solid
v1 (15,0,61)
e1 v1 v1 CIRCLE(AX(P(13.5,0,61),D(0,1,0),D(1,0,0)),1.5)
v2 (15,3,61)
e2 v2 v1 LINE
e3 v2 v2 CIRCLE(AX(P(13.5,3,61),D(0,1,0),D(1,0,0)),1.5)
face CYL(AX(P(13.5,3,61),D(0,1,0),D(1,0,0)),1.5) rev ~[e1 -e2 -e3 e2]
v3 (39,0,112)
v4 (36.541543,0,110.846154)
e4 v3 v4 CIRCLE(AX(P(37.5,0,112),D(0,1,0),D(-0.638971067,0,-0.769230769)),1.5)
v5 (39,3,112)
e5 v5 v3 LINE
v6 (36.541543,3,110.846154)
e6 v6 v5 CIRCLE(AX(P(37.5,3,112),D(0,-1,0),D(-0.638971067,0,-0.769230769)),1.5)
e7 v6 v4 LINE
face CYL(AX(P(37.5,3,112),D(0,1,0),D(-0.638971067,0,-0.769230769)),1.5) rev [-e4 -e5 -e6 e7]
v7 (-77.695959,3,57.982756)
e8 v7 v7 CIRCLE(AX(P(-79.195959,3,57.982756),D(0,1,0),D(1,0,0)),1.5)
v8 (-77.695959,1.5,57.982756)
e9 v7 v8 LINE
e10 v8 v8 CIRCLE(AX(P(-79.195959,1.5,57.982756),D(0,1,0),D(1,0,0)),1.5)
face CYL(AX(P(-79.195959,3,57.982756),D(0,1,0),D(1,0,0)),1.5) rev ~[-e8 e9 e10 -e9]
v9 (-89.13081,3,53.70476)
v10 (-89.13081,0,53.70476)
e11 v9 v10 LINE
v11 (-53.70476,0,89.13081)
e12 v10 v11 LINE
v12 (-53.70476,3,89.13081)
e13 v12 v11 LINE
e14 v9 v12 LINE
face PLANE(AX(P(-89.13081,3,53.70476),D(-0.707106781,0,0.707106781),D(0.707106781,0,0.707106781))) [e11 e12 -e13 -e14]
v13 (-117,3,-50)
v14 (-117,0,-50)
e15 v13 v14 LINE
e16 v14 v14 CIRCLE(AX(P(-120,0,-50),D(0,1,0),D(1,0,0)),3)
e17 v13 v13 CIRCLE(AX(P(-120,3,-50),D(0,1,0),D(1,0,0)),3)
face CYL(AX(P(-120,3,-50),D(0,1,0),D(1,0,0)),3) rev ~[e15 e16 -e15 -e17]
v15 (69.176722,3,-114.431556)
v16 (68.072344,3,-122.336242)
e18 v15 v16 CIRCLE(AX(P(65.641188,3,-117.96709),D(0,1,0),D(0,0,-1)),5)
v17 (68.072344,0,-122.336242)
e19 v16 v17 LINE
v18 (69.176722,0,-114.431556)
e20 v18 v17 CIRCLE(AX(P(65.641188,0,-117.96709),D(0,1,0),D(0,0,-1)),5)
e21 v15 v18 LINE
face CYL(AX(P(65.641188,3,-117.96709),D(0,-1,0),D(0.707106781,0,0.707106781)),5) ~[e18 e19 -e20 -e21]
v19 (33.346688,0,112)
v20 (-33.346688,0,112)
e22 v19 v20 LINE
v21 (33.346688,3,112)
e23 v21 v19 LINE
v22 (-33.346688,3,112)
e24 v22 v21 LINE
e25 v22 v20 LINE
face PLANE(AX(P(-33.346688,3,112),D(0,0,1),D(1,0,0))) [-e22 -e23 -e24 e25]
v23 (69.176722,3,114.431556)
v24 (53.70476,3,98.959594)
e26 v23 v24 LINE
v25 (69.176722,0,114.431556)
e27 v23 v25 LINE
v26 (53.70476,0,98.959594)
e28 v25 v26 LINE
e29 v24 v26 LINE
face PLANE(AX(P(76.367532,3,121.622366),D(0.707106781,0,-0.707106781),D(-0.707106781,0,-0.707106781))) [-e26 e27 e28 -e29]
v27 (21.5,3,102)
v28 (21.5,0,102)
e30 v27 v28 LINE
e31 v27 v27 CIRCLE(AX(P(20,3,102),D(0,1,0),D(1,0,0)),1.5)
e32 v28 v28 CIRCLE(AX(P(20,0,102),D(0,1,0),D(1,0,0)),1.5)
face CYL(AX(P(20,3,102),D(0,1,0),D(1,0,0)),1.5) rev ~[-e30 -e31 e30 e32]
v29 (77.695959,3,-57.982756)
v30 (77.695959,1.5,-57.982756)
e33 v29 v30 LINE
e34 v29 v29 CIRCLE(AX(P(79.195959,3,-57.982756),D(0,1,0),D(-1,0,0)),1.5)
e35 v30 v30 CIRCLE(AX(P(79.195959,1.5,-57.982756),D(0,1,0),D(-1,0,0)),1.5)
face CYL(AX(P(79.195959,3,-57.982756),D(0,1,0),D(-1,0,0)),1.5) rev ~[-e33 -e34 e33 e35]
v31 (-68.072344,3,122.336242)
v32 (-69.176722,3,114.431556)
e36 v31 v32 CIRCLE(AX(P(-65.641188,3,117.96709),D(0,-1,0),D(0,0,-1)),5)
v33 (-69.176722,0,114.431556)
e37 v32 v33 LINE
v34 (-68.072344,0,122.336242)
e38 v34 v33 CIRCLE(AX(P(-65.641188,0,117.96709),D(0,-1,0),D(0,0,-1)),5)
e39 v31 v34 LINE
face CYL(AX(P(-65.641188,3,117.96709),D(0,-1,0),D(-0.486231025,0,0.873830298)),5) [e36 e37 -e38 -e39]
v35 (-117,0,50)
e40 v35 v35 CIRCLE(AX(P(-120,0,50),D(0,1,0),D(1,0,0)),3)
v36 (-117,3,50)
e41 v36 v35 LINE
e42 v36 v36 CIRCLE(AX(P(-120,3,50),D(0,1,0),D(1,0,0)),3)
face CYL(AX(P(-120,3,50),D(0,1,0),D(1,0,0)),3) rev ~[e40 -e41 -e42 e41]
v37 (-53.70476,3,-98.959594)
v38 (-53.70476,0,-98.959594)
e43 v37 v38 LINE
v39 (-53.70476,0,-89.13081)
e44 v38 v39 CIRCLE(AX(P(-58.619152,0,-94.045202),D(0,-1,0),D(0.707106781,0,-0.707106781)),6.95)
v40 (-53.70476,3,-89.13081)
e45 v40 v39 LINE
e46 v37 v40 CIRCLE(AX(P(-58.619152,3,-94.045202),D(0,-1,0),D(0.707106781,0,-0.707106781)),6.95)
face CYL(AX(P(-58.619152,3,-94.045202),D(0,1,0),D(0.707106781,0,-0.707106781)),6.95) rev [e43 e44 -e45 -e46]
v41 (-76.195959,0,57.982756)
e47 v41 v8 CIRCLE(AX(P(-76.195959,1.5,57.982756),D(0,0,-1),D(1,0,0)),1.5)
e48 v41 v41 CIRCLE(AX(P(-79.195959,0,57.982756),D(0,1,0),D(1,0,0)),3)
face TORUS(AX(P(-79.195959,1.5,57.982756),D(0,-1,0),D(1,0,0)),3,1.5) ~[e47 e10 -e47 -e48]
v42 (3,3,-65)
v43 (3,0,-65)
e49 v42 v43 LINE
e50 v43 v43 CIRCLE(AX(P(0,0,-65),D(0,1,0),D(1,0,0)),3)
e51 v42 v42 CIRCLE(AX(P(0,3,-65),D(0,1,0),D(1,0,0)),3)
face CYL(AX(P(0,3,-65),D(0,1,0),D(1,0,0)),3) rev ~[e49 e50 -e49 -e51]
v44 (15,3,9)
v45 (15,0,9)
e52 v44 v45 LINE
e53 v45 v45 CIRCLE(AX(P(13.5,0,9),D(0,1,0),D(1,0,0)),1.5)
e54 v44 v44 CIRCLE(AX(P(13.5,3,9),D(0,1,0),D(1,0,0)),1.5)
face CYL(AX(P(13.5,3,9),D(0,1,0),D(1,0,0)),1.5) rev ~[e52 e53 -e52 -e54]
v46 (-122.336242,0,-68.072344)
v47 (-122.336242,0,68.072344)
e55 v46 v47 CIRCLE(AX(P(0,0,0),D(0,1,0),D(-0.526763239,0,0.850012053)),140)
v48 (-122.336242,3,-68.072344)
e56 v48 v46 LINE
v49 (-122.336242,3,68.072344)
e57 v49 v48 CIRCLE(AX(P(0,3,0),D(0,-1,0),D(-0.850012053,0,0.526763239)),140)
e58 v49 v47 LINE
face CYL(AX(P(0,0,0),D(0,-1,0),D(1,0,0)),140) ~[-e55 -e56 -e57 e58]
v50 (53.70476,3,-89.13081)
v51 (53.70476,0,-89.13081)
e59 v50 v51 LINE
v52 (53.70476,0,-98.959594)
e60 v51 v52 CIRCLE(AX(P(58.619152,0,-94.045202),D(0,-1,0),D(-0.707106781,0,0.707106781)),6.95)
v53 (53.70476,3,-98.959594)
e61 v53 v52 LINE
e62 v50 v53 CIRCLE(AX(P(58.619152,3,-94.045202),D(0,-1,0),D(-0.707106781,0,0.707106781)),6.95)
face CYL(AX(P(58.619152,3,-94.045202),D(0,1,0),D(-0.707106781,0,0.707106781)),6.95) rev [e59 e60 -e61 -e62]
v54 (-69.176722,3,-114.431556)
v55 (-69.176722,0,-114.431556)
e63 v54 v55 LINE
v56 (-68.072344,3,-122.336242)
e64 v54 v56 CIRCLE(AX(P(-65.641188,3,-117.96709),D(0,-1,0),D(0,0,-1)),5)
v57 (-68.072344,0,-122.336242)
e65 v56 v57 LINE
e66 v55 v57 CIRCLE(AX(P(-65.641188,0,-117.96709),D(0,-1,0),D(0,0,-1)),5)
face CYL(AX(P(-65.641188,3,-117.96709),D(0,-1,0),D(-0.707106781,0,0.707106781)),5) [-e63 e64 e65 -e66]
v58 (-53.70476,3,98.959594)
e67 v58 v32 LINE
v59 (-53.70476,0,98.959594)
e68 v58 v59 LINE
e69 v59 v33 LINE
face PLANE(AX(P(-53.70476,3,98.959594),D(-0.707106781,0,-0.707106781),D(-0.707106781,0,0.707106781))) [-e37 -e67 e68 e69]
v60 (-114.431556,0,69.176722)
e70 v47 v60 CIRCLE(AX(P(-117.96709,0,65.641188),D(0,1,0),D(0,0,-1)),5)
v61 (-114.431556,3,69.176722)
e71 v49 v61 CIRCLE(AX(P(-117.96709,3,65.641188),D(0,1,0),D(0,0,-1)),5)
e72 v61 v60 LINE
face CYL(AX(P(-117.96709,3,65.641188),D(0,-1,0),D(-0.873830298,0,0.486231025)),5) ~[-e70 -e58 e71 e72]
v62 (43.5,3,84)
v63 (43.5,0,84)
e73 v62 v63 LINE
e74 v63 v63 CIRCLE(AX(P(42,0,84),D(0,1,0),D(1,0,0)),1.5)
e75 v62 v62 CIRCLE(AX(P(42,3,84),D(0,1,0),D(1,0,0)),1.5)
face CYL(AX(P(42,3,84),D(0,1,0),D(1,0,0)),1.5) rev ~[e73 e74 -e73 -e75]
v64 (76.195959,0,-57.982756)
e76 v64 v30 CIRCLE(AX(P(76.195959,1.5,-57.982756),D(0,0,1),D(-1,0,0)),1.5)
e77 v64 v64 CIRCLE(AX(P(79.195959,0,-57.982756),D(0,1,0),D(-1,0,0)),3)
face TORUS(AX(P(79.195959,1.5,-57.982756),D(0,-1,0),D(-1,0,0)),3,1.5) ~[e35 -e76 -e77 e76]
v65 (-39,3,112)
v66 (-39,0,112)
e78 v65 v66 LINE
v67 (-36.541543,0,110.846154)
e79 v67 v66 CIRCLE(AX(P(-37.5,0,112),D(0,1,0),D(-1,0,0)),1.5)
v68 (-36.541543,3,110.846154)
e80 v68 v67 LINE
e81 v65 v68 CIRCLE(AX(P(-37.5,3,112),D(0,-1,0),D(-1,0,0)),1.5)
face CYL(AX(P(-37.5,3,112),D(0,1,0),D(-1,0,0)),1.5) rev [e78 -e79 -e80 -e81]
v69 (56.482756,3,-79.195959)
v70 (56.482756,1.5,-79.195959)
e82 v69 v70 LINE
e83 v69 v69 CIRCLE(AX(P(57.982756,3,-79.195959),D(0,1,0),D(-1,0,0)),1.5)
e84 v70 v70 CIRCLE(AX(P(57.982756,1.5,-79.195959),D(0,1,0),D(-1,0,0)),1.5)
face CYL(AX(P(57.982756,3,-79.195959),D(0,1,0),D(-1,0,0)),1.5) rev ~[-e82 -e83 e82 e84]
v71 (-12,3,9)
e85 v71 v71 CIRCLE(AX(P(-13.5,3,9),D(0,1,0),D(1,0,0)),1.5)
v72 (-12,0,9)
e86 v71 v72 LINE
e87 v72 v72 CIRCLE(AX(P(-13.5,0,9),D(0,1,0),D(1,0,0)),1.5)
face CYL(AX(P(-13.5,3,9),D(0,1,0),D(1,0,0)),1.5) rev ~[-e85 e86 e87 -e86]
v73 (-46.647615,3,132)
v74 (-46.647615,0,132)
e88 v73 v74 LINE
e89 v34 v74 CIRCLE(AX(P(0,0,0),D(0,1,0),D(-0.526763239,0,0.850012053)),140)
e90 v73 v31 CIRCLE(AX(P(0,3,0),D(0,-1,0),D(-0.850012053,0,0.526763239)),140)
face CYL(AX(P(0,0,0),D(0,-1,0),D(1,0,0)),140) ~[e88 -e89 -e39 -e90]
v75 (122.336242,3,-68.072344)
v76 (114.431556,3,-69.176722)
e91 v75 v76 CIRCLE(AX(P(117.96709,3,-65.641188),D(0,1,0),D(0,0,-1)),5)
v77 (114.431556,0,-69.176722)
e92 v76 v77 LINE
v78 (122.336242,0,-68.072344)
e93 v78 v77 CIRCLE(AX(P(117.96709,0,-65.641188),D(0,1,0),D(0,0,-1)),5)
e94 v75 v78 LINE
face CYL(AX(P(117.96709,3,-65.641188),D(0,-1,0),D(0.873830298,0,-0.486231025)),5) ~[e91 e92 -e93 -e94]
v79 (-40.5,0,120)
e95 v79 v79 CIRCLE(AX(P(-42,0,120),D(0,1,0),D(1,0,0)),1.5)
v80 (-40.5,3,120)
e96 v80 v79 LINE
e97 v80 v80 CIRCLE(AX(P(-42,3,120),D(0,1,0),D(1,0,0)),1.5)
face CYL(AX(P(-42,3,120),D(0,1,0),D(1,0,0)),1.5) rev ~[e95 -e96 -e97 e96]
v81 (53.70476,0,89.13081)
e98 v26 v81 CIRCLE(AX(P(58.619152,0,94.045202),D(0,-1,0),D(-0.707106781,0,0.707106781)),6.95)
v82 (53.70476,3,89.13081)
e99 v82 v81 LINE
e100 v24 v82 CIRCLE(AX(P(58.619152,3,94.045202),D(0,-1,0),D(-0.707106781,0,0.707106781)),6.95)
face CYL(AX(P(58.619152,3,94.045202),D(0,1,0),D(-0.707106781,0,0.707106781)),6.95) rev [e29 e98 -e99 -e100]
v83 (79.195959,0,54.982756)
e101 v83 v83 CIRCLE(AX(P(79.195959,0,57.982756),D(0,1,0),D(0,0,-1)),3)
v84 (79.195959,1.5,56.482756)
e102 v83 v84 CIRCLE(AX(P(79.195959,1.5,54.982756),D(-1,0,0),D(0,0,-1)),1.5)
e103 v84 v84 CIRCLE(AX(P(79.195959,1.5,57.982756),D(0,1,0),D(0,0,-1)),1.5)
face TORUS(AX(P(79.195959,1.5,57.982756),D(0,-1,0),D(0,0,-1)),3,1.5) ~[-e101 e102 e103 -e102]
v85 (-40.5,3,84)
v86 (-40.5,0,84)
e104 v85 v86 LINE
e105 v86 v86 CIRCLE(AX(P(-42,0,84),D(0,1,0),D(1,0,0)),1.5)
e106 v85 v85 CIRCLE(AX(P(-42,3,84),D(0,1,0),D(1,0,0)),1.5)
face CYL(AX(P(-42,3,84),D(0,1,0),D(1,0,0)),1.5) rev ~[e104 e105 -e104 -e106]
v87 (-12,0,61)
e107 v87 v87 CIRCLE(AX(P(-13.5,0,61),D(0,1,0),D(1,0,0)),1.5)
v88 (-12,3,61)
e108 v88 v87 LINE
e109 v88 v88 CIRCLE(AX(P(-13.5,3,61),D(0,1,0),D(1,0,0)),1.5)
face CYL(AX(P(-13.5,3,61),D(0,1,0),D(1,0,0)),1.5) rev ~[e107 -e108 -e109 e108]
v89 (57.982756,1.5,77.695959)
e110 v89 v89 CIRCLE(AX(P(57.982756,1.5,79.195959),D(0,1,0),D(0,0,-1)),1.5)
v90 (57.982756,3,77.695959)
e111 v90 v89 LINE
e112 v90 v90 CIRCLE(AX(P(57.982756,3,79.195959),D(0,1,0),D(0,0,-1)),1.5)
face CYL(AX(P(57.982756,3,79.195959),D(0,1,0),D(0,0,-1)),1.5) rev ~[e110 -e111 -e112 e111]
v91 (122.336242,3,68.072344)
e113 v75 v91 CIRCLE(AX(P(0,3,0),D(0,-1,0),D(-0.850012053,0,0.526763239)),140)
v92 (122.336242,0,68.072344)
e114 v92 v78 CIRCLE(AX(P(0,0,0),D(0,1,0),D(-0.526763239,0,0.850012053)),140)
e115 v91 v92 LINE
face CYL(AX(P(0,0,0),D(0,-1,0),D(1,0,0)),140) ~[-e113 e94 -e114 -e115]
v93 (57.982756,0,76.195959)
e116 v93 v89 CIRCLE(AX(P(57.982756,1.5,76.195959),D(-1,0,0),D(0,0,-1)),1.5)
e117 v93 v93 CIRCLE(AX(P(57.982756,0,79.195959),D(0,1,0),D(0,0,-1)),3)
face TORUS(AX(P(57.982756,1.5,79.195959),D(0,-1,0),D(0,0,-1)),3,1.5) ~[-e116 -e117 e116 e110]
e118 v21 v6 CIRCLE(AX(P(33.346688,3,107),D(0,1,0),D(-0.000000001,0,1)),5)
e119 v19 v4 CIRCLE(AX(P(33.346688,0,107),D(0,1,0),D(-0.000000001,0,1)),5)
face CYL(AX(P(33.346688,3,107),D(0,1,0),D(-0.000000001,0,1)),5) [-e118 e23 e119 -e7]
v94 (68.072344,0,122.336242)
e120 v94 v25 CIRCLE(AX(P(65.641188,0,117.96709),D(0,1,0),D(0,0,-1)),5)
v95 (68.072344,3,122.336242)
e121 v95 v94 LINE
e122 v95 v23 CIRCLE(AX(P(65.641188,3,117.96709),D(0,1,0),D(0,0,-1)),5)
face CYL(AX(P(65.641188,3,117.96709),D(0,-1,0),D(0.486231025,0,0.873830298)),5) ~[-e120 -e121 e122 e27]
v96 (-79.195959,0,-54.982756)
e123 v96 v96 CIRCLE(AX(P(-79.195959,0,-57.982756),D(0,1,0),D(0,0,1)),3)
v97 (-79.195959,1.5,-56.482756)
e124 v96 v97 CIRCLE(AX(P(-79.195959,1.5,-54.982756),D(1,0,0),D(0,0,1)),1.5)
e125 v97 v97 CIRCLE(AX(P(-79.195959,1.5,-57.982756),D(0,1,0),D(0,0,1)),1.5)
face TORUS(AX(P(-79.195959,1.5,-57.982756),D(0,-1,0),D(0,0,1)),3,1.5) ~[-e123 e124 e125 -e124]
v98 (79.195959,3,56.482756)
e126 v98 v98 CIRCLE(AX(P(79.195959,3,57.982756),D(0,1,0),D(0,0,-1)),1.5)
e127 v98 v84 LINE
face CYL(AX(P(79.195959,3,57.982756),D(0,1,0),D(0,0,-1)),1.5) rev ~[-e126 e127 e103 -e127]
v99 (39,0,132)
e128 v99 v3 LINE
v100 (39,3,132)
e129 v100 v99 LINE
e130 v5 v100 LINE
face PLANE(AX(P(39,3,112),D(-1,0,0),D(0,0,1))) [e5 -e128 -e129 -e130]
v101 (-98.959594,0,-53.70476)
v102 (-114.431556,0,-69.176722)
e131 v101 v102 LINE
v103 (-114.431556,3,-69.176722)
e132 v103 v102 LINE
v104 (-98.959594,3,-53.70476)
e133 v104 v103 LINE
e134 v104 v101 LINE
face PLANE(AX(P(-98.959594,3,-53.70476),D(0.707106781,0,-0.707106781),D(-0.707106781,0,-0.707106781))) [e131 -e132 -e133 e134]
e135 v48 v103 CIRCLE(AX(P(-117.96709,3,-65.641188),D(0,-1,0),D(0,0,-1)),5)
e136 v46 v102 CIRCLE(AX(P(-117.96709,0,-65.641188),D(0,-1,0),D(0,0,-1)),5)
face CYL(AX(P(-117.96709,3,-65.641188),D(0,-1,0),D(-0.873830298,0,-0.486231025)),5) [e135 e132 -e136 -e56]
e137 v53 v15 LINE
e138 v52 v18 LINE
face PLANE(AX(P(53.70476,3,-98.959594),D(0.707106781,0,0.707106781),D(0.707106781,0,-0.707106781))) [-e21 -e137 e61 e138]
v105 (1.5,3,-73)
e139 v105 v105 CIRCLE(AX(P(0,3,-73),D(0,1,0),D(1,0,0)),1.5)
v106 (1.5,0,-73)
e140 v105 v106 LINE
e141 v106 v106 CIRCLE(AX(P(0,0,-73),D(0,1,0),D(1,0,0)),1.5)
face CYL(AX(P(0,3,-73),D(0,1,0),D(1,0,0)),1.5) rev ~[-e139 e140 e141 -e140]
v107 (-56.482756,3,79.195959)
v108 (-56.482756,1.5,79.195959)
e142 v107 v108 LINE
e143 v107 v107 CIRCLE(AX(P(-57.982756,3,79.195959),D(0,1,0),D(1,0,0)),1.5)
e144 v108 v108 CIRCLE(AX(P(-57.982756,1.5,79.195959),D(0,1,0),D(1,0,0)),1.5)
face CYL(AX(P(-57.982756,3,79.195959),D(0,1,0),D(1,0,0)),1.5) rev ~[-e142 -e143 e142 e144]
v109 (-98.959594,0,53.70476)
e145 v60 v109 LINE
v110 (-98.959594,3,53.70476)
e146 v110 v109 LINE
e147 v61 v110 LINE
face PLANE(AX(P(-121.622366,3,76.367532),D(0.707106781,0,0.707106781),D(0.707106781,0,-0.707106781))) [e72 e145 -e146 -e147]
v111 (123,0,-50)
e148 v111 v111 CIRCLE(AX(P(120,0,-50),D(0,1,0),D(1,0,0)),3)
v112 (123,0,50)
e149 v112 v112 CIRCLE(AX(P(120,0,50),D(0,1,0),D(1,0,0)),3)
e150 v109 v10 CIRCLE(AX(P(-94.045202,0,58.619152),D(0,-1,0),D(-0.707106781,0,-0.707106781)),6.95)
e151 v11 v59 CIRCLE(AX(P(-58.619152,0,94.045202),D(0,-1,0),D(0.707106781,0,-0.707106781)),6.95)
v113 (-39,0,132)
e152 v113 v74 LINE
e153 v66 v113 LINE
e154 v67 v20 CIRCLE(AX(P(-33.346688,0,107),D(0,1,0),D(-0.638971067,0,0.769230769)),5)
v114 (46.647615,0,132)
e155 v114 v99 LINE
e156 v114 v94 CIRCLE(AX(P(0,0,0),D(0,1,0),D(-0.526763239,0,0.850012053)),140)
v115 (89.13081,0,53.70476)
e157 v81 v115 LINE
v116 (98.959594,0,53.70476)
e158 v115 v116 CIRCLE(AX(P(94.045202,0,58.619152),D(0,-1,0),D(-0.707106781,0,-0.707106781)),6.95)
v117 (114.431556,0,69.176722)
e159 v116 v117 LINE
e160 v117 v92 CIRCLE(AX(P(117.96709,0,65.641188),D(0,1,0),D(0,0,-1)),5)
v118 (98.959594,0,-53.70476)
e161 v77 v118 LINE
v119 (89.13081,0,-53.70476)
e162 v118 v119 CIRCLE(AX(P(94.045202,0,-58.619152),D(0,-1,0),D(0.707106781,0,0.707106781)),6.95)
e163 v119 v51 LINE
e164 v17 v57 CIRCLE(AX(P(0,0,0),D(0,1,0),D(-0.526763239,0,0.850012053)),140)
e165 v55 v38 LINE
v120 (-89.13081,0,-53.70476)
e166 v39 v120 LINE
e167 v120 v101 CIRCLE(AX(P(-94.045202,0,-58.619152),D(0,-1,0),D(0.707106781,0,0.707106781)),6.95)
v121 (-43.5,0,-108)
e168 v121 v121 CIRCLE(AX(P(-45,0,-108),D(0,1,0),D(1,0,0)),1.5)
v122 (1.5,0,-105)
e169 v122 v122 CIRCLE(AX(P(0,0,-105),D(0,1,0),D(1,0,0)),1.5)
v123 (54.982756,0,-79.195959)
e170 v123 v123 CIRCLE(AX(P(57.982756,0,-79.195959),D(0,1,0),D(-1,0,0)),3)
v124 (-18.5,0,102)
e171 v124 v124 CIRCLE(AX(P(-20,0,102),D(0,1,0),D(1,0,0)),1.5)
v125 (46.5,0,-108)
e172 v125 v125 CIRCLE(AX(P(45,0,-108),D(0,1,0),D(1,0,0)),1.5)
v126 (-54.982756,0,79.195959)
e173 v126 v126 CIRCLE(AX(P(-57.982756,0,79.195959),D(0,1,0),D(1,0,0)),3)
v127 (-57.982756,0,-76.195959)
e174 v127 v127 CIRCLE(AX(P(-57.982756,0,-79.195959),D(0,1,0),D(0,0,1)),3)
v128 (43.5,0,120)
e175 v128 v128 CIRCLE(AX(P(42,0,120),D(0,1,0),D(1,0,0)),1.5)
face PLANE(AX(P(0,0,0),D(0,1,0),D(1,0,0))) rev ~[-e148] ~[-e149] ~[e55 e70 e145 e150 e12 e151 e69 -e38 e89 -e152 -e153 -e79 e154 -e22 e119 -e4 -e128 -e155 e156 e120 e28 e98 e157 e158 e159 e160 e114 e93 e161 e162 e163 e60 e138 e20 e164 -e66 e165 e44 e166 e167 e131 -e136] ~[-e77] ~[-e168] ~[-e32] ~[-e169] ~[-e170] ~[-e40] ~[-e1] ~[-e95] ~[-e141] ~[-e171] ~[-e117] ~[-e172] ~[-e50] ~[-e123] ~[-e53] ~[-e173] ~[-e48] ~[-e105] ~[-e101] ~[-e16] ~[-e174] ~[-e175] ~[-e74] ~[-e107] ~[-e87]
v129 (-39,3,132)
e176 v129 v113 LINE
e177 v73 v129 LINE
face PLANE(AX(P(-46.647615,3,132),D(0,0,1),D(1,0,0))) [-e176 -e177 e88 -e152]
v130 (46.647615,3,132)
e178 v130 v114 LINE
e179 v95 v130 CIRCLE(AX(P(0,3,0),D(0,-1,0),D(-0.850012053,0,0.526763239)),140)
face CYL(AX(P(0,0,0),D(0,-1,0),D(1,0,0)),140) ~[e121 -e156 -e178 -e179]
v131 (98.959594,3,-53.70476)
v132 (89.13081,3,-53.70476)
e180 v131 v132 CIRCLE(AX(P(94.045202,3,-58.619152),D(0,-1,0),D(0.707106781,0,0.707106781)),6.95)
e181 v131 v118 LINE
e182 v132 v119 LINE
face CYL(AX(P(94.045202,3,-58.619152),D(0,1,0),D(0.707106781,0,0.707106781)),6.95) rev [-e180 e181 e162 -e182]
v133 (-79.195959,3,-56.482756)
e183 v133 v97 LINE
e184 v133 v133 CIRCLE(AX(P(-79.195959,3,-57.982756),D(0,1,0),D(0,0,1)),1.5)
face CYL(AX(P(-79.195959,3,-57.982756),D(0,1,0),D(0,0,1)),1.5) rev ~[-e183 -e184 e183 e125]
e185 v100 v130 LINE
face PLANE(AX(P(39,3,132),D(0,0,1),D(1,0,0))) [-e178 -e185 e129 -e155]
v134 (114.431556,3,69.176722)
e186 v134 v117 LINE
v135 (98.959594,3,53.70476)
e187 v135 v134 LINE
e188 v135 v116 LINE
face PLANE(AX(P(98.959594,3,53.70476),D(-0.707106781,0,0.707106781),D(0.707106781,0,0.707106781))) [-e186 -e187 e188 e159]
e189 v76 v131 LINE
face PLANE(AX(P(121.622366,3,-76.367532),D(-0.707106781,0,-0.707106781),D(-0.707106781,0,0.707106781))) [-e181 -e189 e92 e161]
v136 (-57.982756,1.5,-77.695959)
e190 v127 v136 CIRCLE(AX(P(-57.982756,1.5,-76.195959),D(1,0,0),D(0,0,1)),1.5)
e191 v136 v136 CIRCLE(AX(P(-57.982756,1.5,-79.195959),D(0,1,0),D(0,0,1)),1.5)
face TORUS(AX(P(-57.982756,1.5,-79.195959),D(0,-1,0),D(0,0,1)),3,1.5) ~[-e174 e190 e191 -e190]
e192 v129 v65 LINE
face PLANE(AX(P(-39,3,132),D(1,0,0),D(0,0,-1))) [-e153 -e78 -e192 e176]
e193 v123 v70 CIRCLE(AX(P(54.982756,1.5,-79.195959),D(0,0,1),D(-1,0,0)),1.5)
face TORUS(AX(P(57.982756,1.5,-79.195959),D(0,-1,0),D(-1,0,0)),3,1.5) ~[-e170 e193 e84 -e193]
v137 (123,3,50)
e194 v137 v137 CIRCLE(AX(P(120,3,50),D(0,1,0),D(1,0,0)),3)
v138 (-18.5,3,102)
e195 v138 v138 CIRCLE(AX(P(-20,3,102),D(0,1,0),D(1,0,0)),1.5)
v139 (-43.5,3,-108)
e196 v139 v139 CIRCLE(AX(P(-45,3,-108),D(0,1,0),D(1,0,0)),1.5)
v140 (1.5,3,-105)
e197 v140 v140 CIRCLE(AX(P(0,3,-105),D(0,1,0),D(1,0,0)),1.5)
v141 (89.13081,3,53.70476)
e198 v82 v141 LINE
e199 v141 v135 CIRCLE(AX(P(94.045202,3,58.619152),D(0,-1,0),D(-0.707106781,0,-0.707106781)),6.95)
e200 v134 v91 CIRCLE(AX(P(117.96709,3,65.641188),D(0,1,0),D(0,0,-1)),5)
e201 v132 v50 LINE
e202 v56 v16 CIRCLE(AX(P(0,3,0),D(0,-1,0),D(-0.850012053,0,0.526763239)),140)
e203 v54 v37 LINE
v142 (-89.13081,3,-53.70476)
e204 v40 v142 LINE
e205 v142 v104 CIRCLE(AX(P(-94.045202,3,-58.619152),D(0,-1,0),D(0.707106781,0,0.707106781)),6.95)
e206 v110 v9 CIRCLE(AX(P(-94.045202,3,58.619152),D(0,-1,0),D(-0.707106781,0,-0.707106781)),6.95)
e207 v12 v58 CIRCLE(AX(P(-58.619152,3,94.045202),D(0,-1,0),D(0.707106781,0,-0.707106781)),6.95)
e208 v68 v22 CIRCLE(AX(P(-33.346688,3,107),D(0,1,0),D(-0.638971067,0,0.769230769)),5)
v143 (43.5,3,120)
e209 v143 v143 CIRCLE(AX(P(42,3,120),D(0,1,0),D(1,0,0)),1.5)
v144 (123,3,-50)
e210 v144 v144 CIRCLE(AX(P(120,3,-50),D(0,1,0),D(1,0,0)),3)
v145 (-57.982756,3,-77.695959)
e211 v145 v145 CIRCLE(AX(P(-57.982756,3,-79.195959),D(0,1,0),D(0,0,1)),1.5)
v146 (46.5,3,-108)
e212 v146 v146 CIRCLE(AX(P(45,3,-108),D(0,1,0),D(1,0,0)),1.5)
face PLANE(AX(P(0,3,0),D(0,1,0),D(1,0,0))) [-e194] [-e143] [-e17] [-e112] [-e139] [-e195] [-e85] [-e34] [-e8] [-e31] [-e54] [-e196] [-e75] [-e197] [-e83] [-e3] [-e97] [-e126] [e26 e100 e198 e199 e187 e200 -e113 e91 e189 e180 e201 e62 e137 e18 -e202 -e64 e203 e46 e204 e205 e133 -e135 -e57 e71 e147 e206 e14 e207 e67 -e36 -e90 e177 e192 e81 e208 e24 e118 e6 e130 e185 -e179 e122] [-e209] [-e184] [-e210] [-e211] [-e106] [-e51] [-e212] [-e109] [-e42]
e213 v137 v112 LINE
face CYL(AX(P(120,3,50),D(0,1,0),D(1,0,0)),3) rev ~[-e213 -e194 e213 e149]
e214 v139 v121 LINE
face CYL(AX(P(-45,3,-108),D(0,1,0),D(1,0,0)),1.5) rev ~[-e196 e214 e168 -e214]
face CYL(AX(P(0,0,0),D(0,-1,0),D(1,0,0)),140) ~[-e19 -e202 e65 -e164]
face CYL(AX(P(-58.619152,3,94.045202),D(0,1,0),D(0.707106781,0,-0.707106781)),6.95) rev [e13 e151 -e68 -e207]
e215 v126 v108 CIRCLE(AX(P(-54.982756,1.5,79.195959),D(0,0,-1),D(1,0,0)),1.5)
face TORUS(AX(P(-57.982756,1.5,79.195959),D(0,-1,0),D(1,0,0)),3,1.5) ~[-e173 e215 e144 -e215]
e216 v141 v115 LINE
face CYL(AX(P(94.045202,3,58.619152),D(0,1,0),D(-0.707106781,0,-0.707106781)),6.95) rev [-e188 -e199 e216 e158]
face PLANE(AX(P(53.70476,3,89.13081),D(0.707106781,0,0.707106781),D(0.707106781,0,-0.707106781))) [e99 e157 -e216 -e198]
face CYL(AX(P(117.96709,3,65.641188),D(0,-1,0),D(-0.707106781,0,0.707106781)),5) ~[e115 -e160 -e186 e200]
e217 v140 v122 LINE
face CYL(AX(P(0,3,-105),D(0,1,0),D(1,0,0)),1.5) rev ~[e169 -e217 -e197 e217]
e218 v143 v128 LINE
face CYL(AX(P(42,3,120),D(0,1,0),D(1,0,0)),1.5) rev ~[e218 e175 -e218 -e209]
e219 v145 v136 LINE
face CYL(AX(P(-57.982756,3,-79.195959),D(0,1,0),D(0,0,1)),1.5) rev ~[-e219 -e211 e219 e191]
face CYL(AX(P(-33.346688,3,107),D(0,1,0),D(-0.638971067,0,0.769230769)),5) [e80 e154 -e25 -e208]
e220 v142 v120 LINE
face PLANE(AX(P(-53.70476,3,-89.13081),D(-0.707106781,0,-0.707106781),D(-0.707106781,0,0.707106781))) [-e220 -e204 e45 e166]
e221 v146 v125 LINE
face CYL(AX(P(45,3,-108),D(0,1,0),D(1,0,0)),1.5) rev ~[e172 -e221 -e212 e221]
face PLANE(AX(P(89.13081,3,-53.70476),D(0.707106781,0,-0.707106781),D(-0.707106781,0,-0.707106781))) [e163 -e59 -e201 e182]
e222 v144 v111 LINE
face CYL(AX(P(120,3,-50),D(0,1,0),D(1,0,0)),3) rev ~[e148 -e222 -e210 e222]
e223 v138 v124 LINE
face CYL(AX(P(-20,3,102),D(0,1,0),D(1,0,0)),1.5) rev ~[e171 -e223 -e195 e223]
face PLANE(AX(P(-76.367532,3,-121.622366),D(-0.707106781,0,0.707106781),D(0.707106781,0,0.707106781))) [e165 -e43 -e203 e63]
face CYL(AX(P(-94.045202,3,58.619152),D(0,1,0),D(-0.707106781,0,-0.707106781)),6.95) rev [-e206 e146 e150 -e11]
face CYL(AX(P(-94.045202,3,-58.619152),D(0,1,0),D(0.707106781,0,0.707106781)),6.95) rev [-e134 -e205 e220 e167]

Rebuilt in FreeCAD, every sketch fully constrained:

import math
import FreeCAD as App
import Part
import Sketcher
from FreeCAD import Vector


def edges_at(feature, points):
    """Names of the edges that pass closest to the given points."""
    edges = feature.Shape.Edges
    near = lambda p: min(range(len(edges)), key=lambda i: edges[i].distToShape(Part.Vertex(*p))[0])
    return sorted({f"Edge{near(p) + 1}" for p in points})

doc = App.newDocument("Part")
body = doc.addObject("PartDesign::Body", "Body")

sketch1 = body.newObject("Sketcher::SketchObject", "Sketch")
sketch1.AttachmentSupport = (doc.getObject("XZ_Plane"), [""])
sketch1.MapMode = "FlatFace"
sketch1.addGeometry(Part.Circle(Vector(0, 0, 0), Vector(0, 0, 1), 140), False)
sketch1.addConstraint(Sketcher.Constraint("Coincident", 0, 3, -1, 1))
sketch1.addConstraint(Sketcher.Constraint("Diameter", 0, 280.0))
pad1 = body.newObject("PartDesign::Pad", "Pad")
pad1.Profile = sketch1
pad1.Length = 3
pad1.Reversed = True

sketch2 = body.newObject("Sketcher::SketchObject", "Sketch001")
sketch2.AttachmentSupport = (doc.getObject("XZ_Plane"), [""])
sketch2.MapMode = "FlatFace"
sketch2.AttachmentOffset = App.Placement(Vector(0, 0, -3), App.Rotation())
sketch2.addGeometry(Part.LineSegment(Vector(-54, 89, 0), Vector(-89, 54, 0)), False)
sketch2.addGeometry(Part.ArcOfCircle(Part.Circle(Vector(-94, 59, 0), Vector(0, 0, 1), 7), math.radians(-135), math.radians(-45)), False)
sketch2.addGeometry(Part.LineSegment(Vector(-99, 54, 0), Vector(-122, 76, 0)), False)
sketch2.addGeometry(Part.LineSegment(Vector(-122, 76, 0), Vector(-76, 122, 0)), False)
sketch2.addGeometry(Part.LineSegment(Vector(-76, 122, 0), Vector(-54, 99, 0)), False)
sketch2.addGeometry(Part.ArcOfCircle(Part.Circle(Vector(-59, 94, 0), Vector(0, 0, 1), 7), math.radians(-45), math.radians(45)), False)
sketch2.addConstraint(Sketcher.Constraint("Tangent", 0, 2, 1, 2))
sketch2.addConstraint(Sketcher.Constraint("Tangent", 1, 1, 2, 1))
sketch2.addConstraint(Sketcher.Constraint("Coincident", 2, 2, 3, 1))
sketch2.addConstraint(Sketcher.Constraint("Coincident", 3, 2, 4, 1))
sketch2.addConstraint(Sketcher.Constraint("Tangent", 4, 2, 5, 2))
sketch2.addConstraint(Sketcher.Constraint("Tangent", 5, 1, 0, 1))
sketch2.addConstraint(Sketcher.Constraint("Equal", 1, 5))
sketch2.addConstraint(Sketcher.Constraint("Perpendicular", 0, 2))
sketch2.addConstraint(Sketcher.Constraint("Perpendicular", 2, 3))
sketch2.addConstraint(Sketcher.Constraint("Perpendicular", 3, 4))
sketch2.addConstraint(Sketcher.Constraint("Horizontal", 0, 2, 1, 1))
sketch2.addConstraint(Sketcher.Constraint("Radius", 1, 6.95))
sketch2.addConstraint(Sketcher.Constraint("Distance", 3, 64.0))
sketch2.addConstraint(Sketcher.Constraint("Distance", 2, 32.05))
sketch2.addConstraint(Sketcher.Constraint("DistanceX", 1, 3, -1, 1, 94.045202))
sketch2.addConstraint(Sketcher.Constraint("DistanceY", -1, 1, 5, 3, 94.045202))
pocket1 = body.newObject("PartDesign::Pocket", "Pocket")
pocket1.Profile = sketch2
pocket1.Length = 3
pocket1.Reversed = True

sketch3 = body.newObject("Sketcher::SketchObject", "Sketch002")
sketch3.AttachmentSupport = (doc.getObject("XZ_Plane"), [""])
sketch3.MapMode = "FlatFace"
sketch3.AttachmentOffset = App.Placement(Vector(0, 0, -3), App.Rotation())
sketch3.addGeometry(Part.Circle(Vector(-79.2, 58, 0), Vector(0, 0, 1), 1.5), False)
sketch3.addGeometry(Part.Circle(Vector(-58, 79.2, 0), Vector(0, 0, 1), 1.5), False)
sketch3.addConstraint(Sketcher.Constraint("Equal", 0, 1))
sketch3.addConstraint(Sketcher.Constraint("Diameter", 0, 3.0))
sketch3.addConstraint(Sketcher.Constraint("DistanceX", 0, 3, -1, 1, 79.195959))
sketch3.addConstraint(Sketcher.Constraint("DistanceY", -1, 1, 1, 3, 79.195959))
sketch3.addConstraint(Sketcher.Constraint("DistanceY", -1, 1, 0, 3, 57.982756))
sketch3.addConstraint(Sketcher.Constraint("DistanceX", 1, 3, -1, 1, 57.982756))
pocket2 = body.newObject("PartDesign::Pocket", "Pocket001")
pocket2.Profile = sketch3
pocket2.Length = 3
pocket2.Reversed = True
doc.recompute()

fillet = body.newObject("PartDesign::Fillet", "Fillet")
fillet.Base = (pocket2, edges_at(pocket2, [(-119.002, 1.5, 73.747), (-73.747, 1.5, 119.002)]))
fillet.Radius = 5
doc.recompute()

polarpattern = body.newObject("PartDesign::PolarPattern", "PolarPattern")
polarpattern.Originals = [pocket1, pocket2]
polarpattern.Axis = (doc.getObject("Y_Axis"), [""])
polarpattern.Angle = 360
polarpattern.Occurrences = 4
body.Tip = polarpattern
doc.recompute()

fillet2 = body.newObject("PartDesign::Fillet", "Fillet001")
fillet2.Base = (polarpattern, edges_at(polarpattern, [
    (73.747, 1.5, 119.002),
    (119.002, 1.5, 73.747),
    (119.002, 1.5, -73.747),
    (73.747, 1.5, -119.002),
    (-73.747, 1.5, -119.002),
    (-119.002, 1.5, -73.747),
]))
fillet2.Radius = 5

sketch4 = body.newObject("Sketcher::SketchObject", "Sketch003")
sketch4.AttachmentSupport = (doc.getObject("XZ_Plane"), [""])
sketch4.MapMode = "FlatFace"
sketch4.AttachmentOffset = App.Placement(Vector(0, 0, -3), App.Rotation())
sketch4.addGeometry(Part.LineSegment(Vector(-39, 132, 0), Vector(-46.6, 132, 0)), False)
sketch4.addGeometry(Part.LineSegment(Vector(-46.6, 132, 0), Vector(-46.6, 140, 0)), False)
sketch4.addGeometry(Part.LineSegment(Vector(-46.6, 140, 0), Vector(46.6, 140, 0)), False)
sketch4.addGeometry(Part.LineSegment(Vector(46.6, 140, 0), Vector(46.6, 132, 0)), False)
sketch4.addGeometry(Part.LineSegment(Vector(46.6, 132, 0), Vector(39, 132, 0)), False)
sketch4.addGeometry(Part.LineSegment(Vector(39, 132, 0), Vector(39, 112, 0)), False)
sketch4.addGeometry(Part.ArcOfCircle(Part.Circle(Vector(37.5, 112, 0), Vector(0, 0, 1), 1.5), math.radians(-130), math.radians(0)), False)
sketch4.addGeometry(Part.ArcOfCircle(Part.Circle(Vector(33.3, 107, 0), Vector(0, 0, 1), 5), math.radians(50), math.radians(90)), False)
sketch4.addGeometry(Part.LineSegment(Vector(33.3, 112, 0), Vector(-33.3, 112, 0)), False)
sketch4.addGeometry(Part.ArcOfCircle(Part.Circle(Vector(-33.3, 107, 0), Vector(0, 0, 1), 5), math.radians(90), math.radians(130)), False)
sketch4.addGeometry(Part.ArcOfCircle(Part.Circle(Vector(-37.5, 112, 0), Vector(0, 0, 1), 1.5), math.radians(180), math.radians(310)), False)
sketch4.addGeometry(Part.LineSegment(Vector(-39, 112, 0), Vector(-39, 132, 0)), False)
sketch4.addConstraint(Sketcher.Constraint("Coincident", 0, 2, 1, 1))
sketch4.addConstraint(Sketcher.Constraint("Coincident", 1, 2, 2, 1))
sketch4.addConstraint(Sketcher.Constraint("Coincident", 2, 2, 3, 1))
sketch4.addConstraint(Sketcher.Constraint("Coincident", 3, 2, 4, 1))
sketch4.addConstraint(Sketcher.Constraint("Coincident", 4, 2, 5, 1))
sketch4.addConstraint(Sketcher.Constraint("Tangent", 5, 2, 6, 2))
sketch4.addConstraint(Sketcher.Constraint("Tangent", 6, 1, 7, 1))
sketch4.addConstraint(Sketcher.Constraint("Tangent", 7, 2, 8, 1))
sketch4.addConstraint(Sketcher.Constraint("Tangent", 8, 2, 9, 1))
sketch4.addConstraint(Sketcher.Constraint("Tangent", 9, 2, 10, 2))
sketch4.addConstraint(Sketcher.Constraint("Tangent", 10, 1, 11, 1))
sketch4.addConstraint(Sketcher.Constraint("Coincident", 11, 2, 0, 1))
sketch4.addConstraint(Sketcher.Constraint("Horizontal", 0))
sketch4.addConstraint(Sketcher.Constraint("Vertical", 1))
sketch4.addConstraint(Sketcher.Constraint("Horizontal", 2))
sketch4.addConstraint(Sketcher.Constraint("Vertical", 3))
sketch4.addConstraint(Sketcher.Constraint("Horizontal", 4))
sketch4.addConstraint(Sketcher.Constraint("Vertical", 5))
sketch4.addConstraint(Sketcher.Constraint("Horizontal", 8))
sketch4.addConstraint(Sketcher.Constraint("Vertical", 11))
sketch4.addConstraint(Sketcher.Constraint("Equal", 7, 9))
sketch4.addConstraint(Sketcher.Constraint("Equal", 6, 10))
sketch4.addConstraint(Sketcher.Constraint("Symmetric", 6, 3, 10, 3, -2))
sketch4.addConstraint(Sketcher.Constraint("Symmetric", 0, 2, 3, 2, -2))
sketch4.addConstraint(Sketcher.Constraint("Horizontal", 5, 2, 7, 2))
sketch4.addConstraint(Sketcher.Constraint("Radius", 7, 5.0))
sketch4.addConstraint(Sketcher.Constraint("Radius", 6, 1.5))
sketch4.addConstraint(Sketcher.Constraint("DistanceY", 1, 1, 1, 2, 8.0))
sketch4.addConstraint(Sketcher.Constraint("DistanceY", 5, 2, 5, 1, 20.0))
sketch4.addConstraint(Sketcher.Constraint("DistanceY", -1, 1, 6, 3, 112.0))
sketch4.addConstraint(Sketcher.Constraint("DistanceX", -1, 1, 4, 2, 39.0))
sketch4.addConstraint(Sketcher.Constraint("DistanceX", 2, 1, 2, 2, 93.29523))
pocket3 = body.newObject("PartDesign::Pocket", "Pocket002")
pocket3.Profile = sketch4
pocket3.Type = "UpToFirst"
pocket3.Reversed = True
doc.recompute()

fillet3 = body.newObject("PartDesign::Fillet", "Fillet002")
fillet3.Base = (pocket3, edges_at(pocket3, [
    (57.983, 0, 80.696),
    (79.196, 0, 59.483),
    (80.696, 0, -57.983),
    (59.483, 0, -79.196),
    (-57.983, 0, -80.696),
    (-79.196, 0, -59.483),
    (-80.696, 0, 57.983),
    (-59.483, 0, 79.196),
]))
fillet3.Radius = 1.5

sketch5 = body.newObject("Sketcher::SketchObject", "Sketch004")
sketch5.AttachmentSupport = (doc.getObject("XZ_Plane"), [""])
sketch5.MapMode = "FlatFace"
sketch5.AttachmentOffset = App.Placement(Vector(0, 0, -3), App.Rotation())
sketch5.addGeometry(Part.Circle(Vector(-13.5, 61, 0), Vector(0, 0, 1), 1.5), False)
sketch5.addConstraint(Sketcher.Constraint("Diameter", 0, 3.0))
sketch5.addConstraint(Sketcher.Constraint("DistanceY", -1, 1, 0, 3, 61.0))
sketch5.addConstraint(Sketcher.Constraint("DistanceX", 0, 3, -1, 1, 13.5))
pocket4 = body.newObject("PartDesign::Pocket", "Pocket003")
pocket4.Profile = sketch5
pocket4.Type = "UpToFirst"
pocket4.Reversed = True

sketch6 = body.newObject("Sketcher::SketchObject", "Sketch005")
sketch6.AttachmentSupport = (doc.getObject("XZ_Plane"), [""])
sketch6.MapMode = "FlatFace"
sketch6.AttachmentOffset = App.Placement(Vector(0, 0, -3), App.Rotation())
sketch6.addGeometry(Part.Circle(Vector(13.5, 61, 0), Vector(0, 0, 1), 1.5), False)
sketch6.addConstraint(Sketcher.Constraint("Diameter", 0, 3.0))
sketch6.addConstraint(Sketcher.Constraint("DistanceY", -1, 1, 0, 3, 61.0))
sketch6.addConstraint(Sketcher.Constraint("DistanceX", -1, 1, 0, 3, 13.5))
pocket5 = body.newObject("PartDesign::Pocket", "Pocket004")
pocket5.Profile = sketch6
pocket5.Type = "UpToFirst"
pocket5.Reversed = True

sketch7 = body.newObject("Sketcher::SketchObject", "Sketch006")
sketch7.AttachmentSupport = (doc.getObject("XZ_Plane"), [""])
sketch7.MapMode = "FlatFace"
sketch7.AttachmentOffset = App.Placement(Vector(0, 0, -3), App.Rotation())
sketch7.addGeometry(Part.Circle(Vector(-13.5, 9, 0), Vector(0, 0, 1), 1.5), False)
sketch7.addConstraint(Sketcher.Constraint("Diameter", 0, 3.0))
sketch7.addConstraint(Sketcher.Constraint("DistanceY", -1, 1, 0, 3, 9.0))
sketch7.addConstraint(Sketcher.Constraint("DistanceX", 0, 3, -1, 1, 13.5))
pocket6 = body.newObject("PartDesign::Pocket", "Pocket005")
pocket6.Profile = sketch7
pocket6.Type = "UpToFirst"
pocket6.Reversed = True

sketch8 = body.newObject("Sketcher::SketchObject", "Sketch007")
sketch8.AttachmentSupport = (doc.getObject("XZ_Plane"), [""])
sketch8.MapMode = "FlatFace"
sketch8.AttachmentOffset = App.Placement(Vector(0, 0, -3), App.Rotation())
sketch8.addGeometry(Part.Circle(Vector(13.5, 9, 0), Vector(0, 0, 1), 1.5), False)
sketch8.addConstraint(Sketcher.Constraint("Diameter", 0, 3.0))
sketch8.addConstraint(Sketcher.Constraint("DistanceY", -1, 1, 0, 3, 9.0))
sketch8.addConstraint(Sketcher.Constraint("DistanceX", -1, 1, 0, 3, 13.5))
pocket7 = body.newObject("PartDesign::Pocket", "Pocket006")
pocket7.Profile = sketch8
pocket7.Type = "UpToFirst"
pocket7.Reversed = True

sketch9 = body.newObject("Sketcher::SketchObject", "Sketch008")
sketch9.AttachmentSupport = (doc.getObject("XZ_Plane"), [""])
sketch9.MapMode = "FlatFace"
sketch9.AttachmentOffset = App.Placement(Vector(0, 0, -3), App.Rotation())
sketch9.addGeometry(Part.Circle(Vector(-20, 102, 0), Vector(0, 0, 1), 1.5), False)
sketch9.addConstraint(Sketcher.Constraint("Diameter", 0, 3.0))
sketch9.addConstraint(Sketcher.Constraint("DistanceX", 0, 3, -1, 1, 20.0))
sketch9.addConstraint(Sketcher.Constraint("DistanceY", -1, 1, 0, 3, 102.0))
pocket8 = body.newObject("PartDesign::Pocket", "Pocket007")
pocket8.Profile = sketch9
pocket8.Type = "UpToFirst"
pocket8.Reversed = True

sketch10 = body.newObject("Sketcher::SketchObject", "Sketch009")
sketch10.AttachmentSupport = (doc.getObject("XZ_Plane"), [""])
sketch10.MapMode = "FlatFace"
sketch10.AttachmentOffset = App.Placement(Vector(0, 0, -3), App.Rotation())
sketch10.addGeometry(Part.Circle(Vector(20, 102, 0), Vector(0, 0, 1), 1.5), False)
sketch10.addConstraint(Sketcher.Constraint("Diameter", 0, 3.0))
sketch10.addConstraint(Sketcher.Constraint("DistanceX", -1, 1, 0, 3, 20.0))
sketch10.addConstraint(Sketcher.Constraint("DistanceY", -1, 1, 0, 3, 102.0))
pocket9 = body.newObject("PartDesign::Pocket", "Pocket008")
pocket9.Profile = sketch10
pocket9.Type = "UpToFirst"
pocket9.Reversed = True

sketch11 = body.newObject("Sketcher::SketchObject", "Sketch010")
sketch11.AttachmentSupport = (doc.getObject("XZ_Plane"), [""])
sketch11.MapMode = "FlatFace"
sketch11.AttachmentOffset = App.Placement(Vector(0, 0, -3), App.Rotation())
sketch11.addGeometry(Part.Circle(Vector(-42, 84, 0), Vector(0, 0, 1), 1.5), False)
sketch11.addConstraint(Sketcher.Constraint("Diameter", 0, 3.0))
sketch11.addConstraint(Sketcher.Constraint("DistanceX", 0, 3, -1, 1, 42.0))
sketch11.addConstraint(Sketcher.Constraint("DistanceY", -1, 1, 0, 3, 84.0))
pocket10 = body.newObject("PartDesign::Pocket", "Pocket009")
pocket10.Profile = sketch11
pocket10.Type = "UpToFirst"
pocket10.Reversed = True

sketch12 = body.newObject("Sketcher::SketchObject", "Sketch011")
sketch12.AttachmentSupport = (doc.getObject("XZ_Plane"), [""])
sketch12.MapMode = "FlatFace"
sketch12.AttachmentOffset = App.Placement(Vector(0, 0, -3), App.Rotation())
sketch12.addGeometry(Part.Circle(Vector(-42, 120, 0), Vector(0, 0, 1), 1.5), False)
sketch12.addConstraint(Sketcher.Constraint("Diameter", 0, 3.0))
sketch12.addConstraint(Sketcher.Constraint("DistanceX", 0, 3, -1, 1, 42.0))
sketch12.addConstraint(Sketcher.Constraint("DistanceY", -1, 1, 0, 3, 120.0))
pocket11 = body.newObject("PartDesign::Pocket", "Pocket010")
pocket11.Profile = sketch12
pocket11.Type = "UpToFirst"
pocket11.Reversed = True

sketch13 = body.newObject("Sketcher::SketchObject", "Sketch012")
sketch13.AttachmentSupport = (doc.getObject("XZ_Plane"), [""])
sketch13.MapMode = "FlatFace"
sketch13.AttachmentOffset = App.Placement(Vector(0, 0, -3), App.Rotation())
sketch13.addGeometry(Part.Circle(Vector(42, 120, 0), Vector(0, 0, 1), 1.5), False)
sketch13.addConstraint(Sketcher.Constraint("Diameter", 0, 3.0))
sketch13.addConstraint(Sketcher.Constraint("DistanceX", -1, 1, 0, 3, 42.0))
sketch13.addConstraint(Sketcher.Constraint("DistanceY", -1, 1, 0, 3, 120.0))
pocket12 = body.newObject("PartDesign::Pocket", "Pocket011")
pocket12.Profile = sketch13
pocket12.Type = "UpToFirst"
pocket12.Reversed = True

sketch14 = body.newObject("Sketcher::SketchObject", "Sketch013")
sketch14.AttachmentSupport = (doc.getObject("XZ_Plane"), [""])
sketch14.MapMode = "FlatFace"
sketch14.AttachmentOffset = App.Placement(Vector(0, 0, -3), App.Rotation())
sketch14.addGeometry(Part.Circle(Vector(42, 84, 0), Vector(0, 0, 1), 1.5), False)
sketch14.addConstraint(Sketcher.Constraint("Diameter", 0, 3.0))
sketch14.addConstraint(Sketcher.Constraint("DistanceX", -1, 1, 0, 3, 42.0))
sketch14.addConstraint(Sketcher.Constraint("DistanceY", -1, 1, 0, 3, 84.0))
pocket13 = body.newObject("PartDesign::Pocket", "Pocket012")
pocket13.Profile = sketch14
pocket13.Type = "UpToFirst"
pocket13.Reversed = True

sketch15 = body.newObject("Sketcher::SketchObject", "Sketch014")
sketch15.AttachmentSupport = (doc.getObject("XZ_Plane"), [""])
sketch15.MapMode = "FlatFace"
sketch15.AttachmentOffset = App.Placement(Vector(0, 0, -3), App.Rotation())
sketch15.addGeometry(Part.Circle(Vector(0, -73, 0), Vector(0, 0, 1), 1.5), False)
sketch15.addConstraint(Sketcher.Constraint("PointOnObject", 0, 3, -2))
sketch15.addConstraint(Sketcher.Constraint("Diameter", 0, 3.0))
sketch15.addConstraint(Sketcher.Constraint("DistanceY", 0, 3, -1, 1, 73.0))
pocket14 = body.newObject("PartDesign::Pocket", "Pocket013")
pocket14.Profile = sketch15
pocket14.Type = "UpToFirst"
pocket14.Reversed = True

sketch16 = body.newObject("Sketcher::SketchObject", "Sketch015")
sketch16.AttachmentSupport = (doc.getObject("XZ_Plane"), [""])
sketch16.MapMode = "FlatFace"
sketch16.AttachmentOffset = App.Placement(Vector(0, 0, -3), App.Rotation())
sketch16.addGeometry(Part.Circle(Vector(-45, -108, 0), Vector(0, 0, 1), 1.5), False)
sketch16.addConstraint(Sketcher.Constraint("Diameter", 0, 3.0))
sketch16.addConstraint(Sketcher.Constraint("DistanceX", 0, 3, -1, 1, 45.0))
sketch16.addConstraint(Sketcher.Constraint("DistanceY", 0, 3, -1, 1, 108.0))
pocket15 = body.newObject("PartDesign::Pocket", "Pocket014")
pocket15.Profile = sketch16
pocket15.Type = "UpToFirst"
pocket15.Reversed = True

sketch17 = body.newObject("Sketcher::SketchObject", "Sketch016")
sketch17.AttachmentSupport = (doc.getObject("XZ_Plane"), [""])
sketch17.MapMode = "FlatFace"
sketch17.AttachmentOffset = App.Placement(Vector(0, 0, -3), App.Rotation())
sketch17.addGeometry(Part.Circle(Vector(45, -108, 0), Vector(0, 0, 1), 1.5), False)
sketch17.addConstraint(Sketcher.Constraint("Diameter", 0, 3.0))
sketch17.addConstraint(Sketcher.Constraint("DistanceX", -1, 1, 0, 3, 45.0))
sketch17.addConstraint(Sketcher.Constraint("DistanceY", 0, 3, -1, 1, 108.0))
pocket16 = body.newObject("PartDesign::Pocket", "Pocket015")
pocket16.Profile = sketch17
pocket16.Type = "UpToFirst"
pocket16.Reversed = True

sketch18 = body.newObject("Sketcher::SketchObject", "Sketch017")
sketch18.AttachmentSupport = (doc.getObject("XZ_Plane"), [""])
sketch18.MapMode = "FlatFace"
sketch18.AttachmentOffset = App.Placement(Vector(0, 0, -3), App.Rotation())
sketch18.addGeometry(Part.Circle(Vector(0, -105, 0), Vector(0, 0, 1), 1.5), False)
sketch18.addConstraint(Sketcher.Constraint("PointOnObject", 0, 3, -2))
sketch18.addConstraint(Sketcher.Constraint("Diameter", 0, 3.0))
sketch18.addConstraint(Sketcher.Constraint("DistanceY", 0, 3, -1, 1, 105.0))
pocket17 = body.newObject("PartDesign::Pocket", "Pocket016")
pocket17.Profile = sketch18
pocket17.Type = "UpToFirst"
pocket17.Reversed = True

sketch19 = body.newObject("Sketcher::SketchObject", "Sketch018")
sketch19.AttachmentSupport = (doc.getObject("XZ_Plane"), [""])
sketch19.MapMode = "FlatFace"
sketch19.AttachmentOffset = App.Placement(Vector(0, 0, -3), App.Rotation())
sketch19.addGeometry(Part.Circle(Vector(0, -65, 0), Vector(0, 0, 1), 3), False)
sketch19.addConstraint(Sketcher.Constraint("PointOnObject", 0, 3, -2))
sketch19.addConstraint(Sketcher.Constraint("Diameter", 0, 6.0))
sketch19.addConstraint(Sketcher.Constraint("DistanceY", 0, 3, -1, 1, 65.0))
pocket18 = body.newObject("PartDesign::Pocket", "Pocket017")
pocket18.Profile = sketch19
pocket18.Type = "UpToFirst"
pocket18.Reversed = True

sketch20 = body.newObject("Sketcher::SketchObject", "Sketch019")
sketch20.AttachmentSupport = (doc.getObject("XZ_Plane"), [""])
sketch20.MapMode = "FlatFace"
sketch20.AttachmentOffset = App.Placement(Vector(0, 0, -3), App.Rotation())
sketch20.addGeometry(Part.Circle(Vector(-120, -50, 0), Vector(0, 0, 1), 3), False)
sketch20.addConstraint(Sketcher.Constraint("Diameter", 0, 6.0))
sketch20.addConstraint(Sketcher.Constraint("DistanceX", 0, 3, -1, 1, 120.0))
sketch20.addConstraint(Sketcher.Constraint("DistanceY", 0, 3, -1, 1, 50.0))
pocket19 = body.newObject("PartDesign::Pocket", "Pocket018")
pocket19.Profile = sketch20
pocket19.Type = "UpToFirst"
pocket19.Reversed = True

sketch21 = body.newObject("Sketcher::SketchObject", "Sketch020")
sketch21.AttachmentSupport = (doc.getObject("XZ_Plane"), [""])
sketch21.MapMode = "FlatFace"
sketch21.AttachmentOffset = App.Placement(Vector(0, 0, -3), App.Rotation())
sketch21.addGeometry(Part.Circle(Vector(-120, 50, 0), Vector(0, 0, 1), 3), False)
sketch21.addConstraint(Sketcher.Constraint("Diameter", 0, 6.0))
sketch21.addConstraint(Sketcher.Constraint("DistanceX", 0, 3, -1, 1, 120.0))
sketch21.addConstraint(Sketcher.Constraint("DistanceY", -1, 1, 0, 3, 50.0))
pocket20 = body.newObject("PartDesign::Pocket", "Pocket019")
pocket20.Profile = sketch21
pocket20.Type = "UpToFirst"
pocket20.Reversed = True

sketch22 = body.newObject("Sketcher::SketchObject", "Sketch021")
sketch22.AttachmentSupport = (doc.getObject("XZ_Plane"), [""])
sketch22.MapMode = "FlatFace"
sketch22.AttachmentOffset = App.Placement(Vector(0, 0, -3), App.Rotation())
sketch22.addGeometry(Part.Circle(Vector(120, -50, 0), Vector(0, 0, 1), 3), False)
sketch22.addConstraint(Sketcher.Constraint("Diameter", 0, 6.0))
sketch22.addConstraint(Sketcher.Constraint("DistanceX", -1, 1, 0, 3, 120.0))
sketch22.addConstraint(Sketcher.Constraint("DistanceY", 0, 3, -1, 1, 50.0))
pocket21 = body.newObject("PartDesign::Pocket", "Pocket020")
pocket21.Profile = sketch22
pocket21.Type = "UpToFirst"
pocket21.Reversed = True

sketch23 = body.newObject("Sketcher::SketchObject", "Sketch022")
sketch23.AttachmentSupport = (doc.getObject("XZ_Plane"), [""])
sketch23.MapMode = "FlatFace"
sketch23.AttachmentOffset = App.Placement(Vector(0, 0, -3), App.Rotation())
sketch23.addGeometry(Part.Circle(Vector(120, 50, 0), Vector(0, 0, 1), 3), False)
sketch23.addConstraint(Sketcher.Constraint("Diameter", 0, 6.0))
sketch23.addConstraint(Sketcher.Constraint("DistanceX", -1, 1, 0, 3, 120.0))
sketch23.addConstraint(Sketcher.Constraint("DistanceY", -1, 1, 0, 3, 50.0))
pocket22 = body.newObject("PartDesign::Pocket", "Pocket021")
pocket22.Profile = sketch23
pocket22.Type = "UpToFirst"
pocket22.Reversed = True

doc.recompute()
